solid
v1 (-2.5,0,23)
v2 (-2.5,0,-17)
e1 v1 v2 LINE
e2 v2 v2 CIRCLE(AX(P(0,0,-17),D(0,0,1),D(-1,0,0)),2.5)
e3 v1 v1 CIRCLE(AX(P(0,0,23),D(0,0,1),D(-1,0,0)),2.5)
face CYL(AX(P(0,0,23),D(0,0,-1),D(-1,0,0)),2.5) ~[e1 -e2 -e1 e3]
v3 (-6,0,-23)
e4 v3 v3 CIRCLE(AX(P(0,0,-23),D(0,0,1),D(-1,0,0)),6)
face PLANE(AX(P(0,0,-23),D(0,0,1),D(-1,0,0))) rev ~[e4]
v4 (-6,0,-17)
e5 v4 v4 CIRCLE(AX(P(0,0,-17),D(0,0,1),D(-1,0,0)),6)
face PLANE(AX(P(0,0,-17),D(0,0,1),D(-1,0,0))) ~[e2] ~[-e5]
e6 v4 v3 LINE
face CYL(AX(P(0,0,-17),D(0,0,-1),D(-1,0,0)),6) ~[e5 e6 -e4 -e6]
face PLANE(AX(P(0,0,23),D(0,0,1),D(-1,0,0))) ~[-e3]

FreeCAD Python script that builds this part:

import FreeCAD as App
import Part
import Sketcher
from FreeCAD import Vector
Q = App.Units.Quantity


def add_polygon(sketch, points):
    """Adds a closed chain of lines whose ends are joined by coincident constraints."""
    first, n = sketch.GeometryCount, len(points)
    for a, b in zip(points, points[1:] + points[:1]):
        sketch.addGeometry(Part.LineSegment(App.Vector(*a, 0), App.Vector(*b, 0)), False)
    for i in range(n):
        sketch.addConstraint(Sketcher.Constraint("Coincident", first + i, 2, first + (i + 1) % n, 1))

doc = App.newDocument("Part")
body = doc.addObject("PartDesign::Body", "Body")

# Sketch on XZ plane
sketch1 = body.newObject("Sketcher::SketchObject", "Sketch")
sketch1.AttachmentSupport = (doc.getObject("XZ_Plane"), [""])
sketch1.MapMode = "FlatFace"
add_polygon(sketch1, [(-2.5, 23), (0, 23), (0, -23), (-6, -23), (-6, -17), (-2.5, -17)])  # lines 0-5
sketch1.addConstraint([
    Sketcher.Constraint("Horizontal", 0),
    Sketcher.Constraint("Vertical", 1),
    Sketcher.Constraint("Horizontal", 2),
    Sketcher.Constraint("Vertical", 3),
    Sketcher.Constraint("Horizontal", 4),
    Sketcher.Constraint("Vertical", 5),
    Sketcher.Constraint("Symmetric", 0, 2, 1, 2, -1, 1),
    Sketcher.Constraint("Equal", 2, 3),
    Sketcher.Constraint("DistanceX", 2, 2, 2, 1, Q("6 mm")),
    Sketcher.Constraint("DistanceY", 5, 1, 5, 2, Q("40 mm")),
    Sketcher.Constraint("DistanceX", 0, 1, 0, 2, Q("2.5 mm")),
])
revolution = body.newObject("PartDesign::Revolution", "Revolution")
revolution.Profile = sketch1
revolution.ReferenceAxis = (sketch1, ["V_Axis"])
revolution.Angle = 360

doc.recompute()
